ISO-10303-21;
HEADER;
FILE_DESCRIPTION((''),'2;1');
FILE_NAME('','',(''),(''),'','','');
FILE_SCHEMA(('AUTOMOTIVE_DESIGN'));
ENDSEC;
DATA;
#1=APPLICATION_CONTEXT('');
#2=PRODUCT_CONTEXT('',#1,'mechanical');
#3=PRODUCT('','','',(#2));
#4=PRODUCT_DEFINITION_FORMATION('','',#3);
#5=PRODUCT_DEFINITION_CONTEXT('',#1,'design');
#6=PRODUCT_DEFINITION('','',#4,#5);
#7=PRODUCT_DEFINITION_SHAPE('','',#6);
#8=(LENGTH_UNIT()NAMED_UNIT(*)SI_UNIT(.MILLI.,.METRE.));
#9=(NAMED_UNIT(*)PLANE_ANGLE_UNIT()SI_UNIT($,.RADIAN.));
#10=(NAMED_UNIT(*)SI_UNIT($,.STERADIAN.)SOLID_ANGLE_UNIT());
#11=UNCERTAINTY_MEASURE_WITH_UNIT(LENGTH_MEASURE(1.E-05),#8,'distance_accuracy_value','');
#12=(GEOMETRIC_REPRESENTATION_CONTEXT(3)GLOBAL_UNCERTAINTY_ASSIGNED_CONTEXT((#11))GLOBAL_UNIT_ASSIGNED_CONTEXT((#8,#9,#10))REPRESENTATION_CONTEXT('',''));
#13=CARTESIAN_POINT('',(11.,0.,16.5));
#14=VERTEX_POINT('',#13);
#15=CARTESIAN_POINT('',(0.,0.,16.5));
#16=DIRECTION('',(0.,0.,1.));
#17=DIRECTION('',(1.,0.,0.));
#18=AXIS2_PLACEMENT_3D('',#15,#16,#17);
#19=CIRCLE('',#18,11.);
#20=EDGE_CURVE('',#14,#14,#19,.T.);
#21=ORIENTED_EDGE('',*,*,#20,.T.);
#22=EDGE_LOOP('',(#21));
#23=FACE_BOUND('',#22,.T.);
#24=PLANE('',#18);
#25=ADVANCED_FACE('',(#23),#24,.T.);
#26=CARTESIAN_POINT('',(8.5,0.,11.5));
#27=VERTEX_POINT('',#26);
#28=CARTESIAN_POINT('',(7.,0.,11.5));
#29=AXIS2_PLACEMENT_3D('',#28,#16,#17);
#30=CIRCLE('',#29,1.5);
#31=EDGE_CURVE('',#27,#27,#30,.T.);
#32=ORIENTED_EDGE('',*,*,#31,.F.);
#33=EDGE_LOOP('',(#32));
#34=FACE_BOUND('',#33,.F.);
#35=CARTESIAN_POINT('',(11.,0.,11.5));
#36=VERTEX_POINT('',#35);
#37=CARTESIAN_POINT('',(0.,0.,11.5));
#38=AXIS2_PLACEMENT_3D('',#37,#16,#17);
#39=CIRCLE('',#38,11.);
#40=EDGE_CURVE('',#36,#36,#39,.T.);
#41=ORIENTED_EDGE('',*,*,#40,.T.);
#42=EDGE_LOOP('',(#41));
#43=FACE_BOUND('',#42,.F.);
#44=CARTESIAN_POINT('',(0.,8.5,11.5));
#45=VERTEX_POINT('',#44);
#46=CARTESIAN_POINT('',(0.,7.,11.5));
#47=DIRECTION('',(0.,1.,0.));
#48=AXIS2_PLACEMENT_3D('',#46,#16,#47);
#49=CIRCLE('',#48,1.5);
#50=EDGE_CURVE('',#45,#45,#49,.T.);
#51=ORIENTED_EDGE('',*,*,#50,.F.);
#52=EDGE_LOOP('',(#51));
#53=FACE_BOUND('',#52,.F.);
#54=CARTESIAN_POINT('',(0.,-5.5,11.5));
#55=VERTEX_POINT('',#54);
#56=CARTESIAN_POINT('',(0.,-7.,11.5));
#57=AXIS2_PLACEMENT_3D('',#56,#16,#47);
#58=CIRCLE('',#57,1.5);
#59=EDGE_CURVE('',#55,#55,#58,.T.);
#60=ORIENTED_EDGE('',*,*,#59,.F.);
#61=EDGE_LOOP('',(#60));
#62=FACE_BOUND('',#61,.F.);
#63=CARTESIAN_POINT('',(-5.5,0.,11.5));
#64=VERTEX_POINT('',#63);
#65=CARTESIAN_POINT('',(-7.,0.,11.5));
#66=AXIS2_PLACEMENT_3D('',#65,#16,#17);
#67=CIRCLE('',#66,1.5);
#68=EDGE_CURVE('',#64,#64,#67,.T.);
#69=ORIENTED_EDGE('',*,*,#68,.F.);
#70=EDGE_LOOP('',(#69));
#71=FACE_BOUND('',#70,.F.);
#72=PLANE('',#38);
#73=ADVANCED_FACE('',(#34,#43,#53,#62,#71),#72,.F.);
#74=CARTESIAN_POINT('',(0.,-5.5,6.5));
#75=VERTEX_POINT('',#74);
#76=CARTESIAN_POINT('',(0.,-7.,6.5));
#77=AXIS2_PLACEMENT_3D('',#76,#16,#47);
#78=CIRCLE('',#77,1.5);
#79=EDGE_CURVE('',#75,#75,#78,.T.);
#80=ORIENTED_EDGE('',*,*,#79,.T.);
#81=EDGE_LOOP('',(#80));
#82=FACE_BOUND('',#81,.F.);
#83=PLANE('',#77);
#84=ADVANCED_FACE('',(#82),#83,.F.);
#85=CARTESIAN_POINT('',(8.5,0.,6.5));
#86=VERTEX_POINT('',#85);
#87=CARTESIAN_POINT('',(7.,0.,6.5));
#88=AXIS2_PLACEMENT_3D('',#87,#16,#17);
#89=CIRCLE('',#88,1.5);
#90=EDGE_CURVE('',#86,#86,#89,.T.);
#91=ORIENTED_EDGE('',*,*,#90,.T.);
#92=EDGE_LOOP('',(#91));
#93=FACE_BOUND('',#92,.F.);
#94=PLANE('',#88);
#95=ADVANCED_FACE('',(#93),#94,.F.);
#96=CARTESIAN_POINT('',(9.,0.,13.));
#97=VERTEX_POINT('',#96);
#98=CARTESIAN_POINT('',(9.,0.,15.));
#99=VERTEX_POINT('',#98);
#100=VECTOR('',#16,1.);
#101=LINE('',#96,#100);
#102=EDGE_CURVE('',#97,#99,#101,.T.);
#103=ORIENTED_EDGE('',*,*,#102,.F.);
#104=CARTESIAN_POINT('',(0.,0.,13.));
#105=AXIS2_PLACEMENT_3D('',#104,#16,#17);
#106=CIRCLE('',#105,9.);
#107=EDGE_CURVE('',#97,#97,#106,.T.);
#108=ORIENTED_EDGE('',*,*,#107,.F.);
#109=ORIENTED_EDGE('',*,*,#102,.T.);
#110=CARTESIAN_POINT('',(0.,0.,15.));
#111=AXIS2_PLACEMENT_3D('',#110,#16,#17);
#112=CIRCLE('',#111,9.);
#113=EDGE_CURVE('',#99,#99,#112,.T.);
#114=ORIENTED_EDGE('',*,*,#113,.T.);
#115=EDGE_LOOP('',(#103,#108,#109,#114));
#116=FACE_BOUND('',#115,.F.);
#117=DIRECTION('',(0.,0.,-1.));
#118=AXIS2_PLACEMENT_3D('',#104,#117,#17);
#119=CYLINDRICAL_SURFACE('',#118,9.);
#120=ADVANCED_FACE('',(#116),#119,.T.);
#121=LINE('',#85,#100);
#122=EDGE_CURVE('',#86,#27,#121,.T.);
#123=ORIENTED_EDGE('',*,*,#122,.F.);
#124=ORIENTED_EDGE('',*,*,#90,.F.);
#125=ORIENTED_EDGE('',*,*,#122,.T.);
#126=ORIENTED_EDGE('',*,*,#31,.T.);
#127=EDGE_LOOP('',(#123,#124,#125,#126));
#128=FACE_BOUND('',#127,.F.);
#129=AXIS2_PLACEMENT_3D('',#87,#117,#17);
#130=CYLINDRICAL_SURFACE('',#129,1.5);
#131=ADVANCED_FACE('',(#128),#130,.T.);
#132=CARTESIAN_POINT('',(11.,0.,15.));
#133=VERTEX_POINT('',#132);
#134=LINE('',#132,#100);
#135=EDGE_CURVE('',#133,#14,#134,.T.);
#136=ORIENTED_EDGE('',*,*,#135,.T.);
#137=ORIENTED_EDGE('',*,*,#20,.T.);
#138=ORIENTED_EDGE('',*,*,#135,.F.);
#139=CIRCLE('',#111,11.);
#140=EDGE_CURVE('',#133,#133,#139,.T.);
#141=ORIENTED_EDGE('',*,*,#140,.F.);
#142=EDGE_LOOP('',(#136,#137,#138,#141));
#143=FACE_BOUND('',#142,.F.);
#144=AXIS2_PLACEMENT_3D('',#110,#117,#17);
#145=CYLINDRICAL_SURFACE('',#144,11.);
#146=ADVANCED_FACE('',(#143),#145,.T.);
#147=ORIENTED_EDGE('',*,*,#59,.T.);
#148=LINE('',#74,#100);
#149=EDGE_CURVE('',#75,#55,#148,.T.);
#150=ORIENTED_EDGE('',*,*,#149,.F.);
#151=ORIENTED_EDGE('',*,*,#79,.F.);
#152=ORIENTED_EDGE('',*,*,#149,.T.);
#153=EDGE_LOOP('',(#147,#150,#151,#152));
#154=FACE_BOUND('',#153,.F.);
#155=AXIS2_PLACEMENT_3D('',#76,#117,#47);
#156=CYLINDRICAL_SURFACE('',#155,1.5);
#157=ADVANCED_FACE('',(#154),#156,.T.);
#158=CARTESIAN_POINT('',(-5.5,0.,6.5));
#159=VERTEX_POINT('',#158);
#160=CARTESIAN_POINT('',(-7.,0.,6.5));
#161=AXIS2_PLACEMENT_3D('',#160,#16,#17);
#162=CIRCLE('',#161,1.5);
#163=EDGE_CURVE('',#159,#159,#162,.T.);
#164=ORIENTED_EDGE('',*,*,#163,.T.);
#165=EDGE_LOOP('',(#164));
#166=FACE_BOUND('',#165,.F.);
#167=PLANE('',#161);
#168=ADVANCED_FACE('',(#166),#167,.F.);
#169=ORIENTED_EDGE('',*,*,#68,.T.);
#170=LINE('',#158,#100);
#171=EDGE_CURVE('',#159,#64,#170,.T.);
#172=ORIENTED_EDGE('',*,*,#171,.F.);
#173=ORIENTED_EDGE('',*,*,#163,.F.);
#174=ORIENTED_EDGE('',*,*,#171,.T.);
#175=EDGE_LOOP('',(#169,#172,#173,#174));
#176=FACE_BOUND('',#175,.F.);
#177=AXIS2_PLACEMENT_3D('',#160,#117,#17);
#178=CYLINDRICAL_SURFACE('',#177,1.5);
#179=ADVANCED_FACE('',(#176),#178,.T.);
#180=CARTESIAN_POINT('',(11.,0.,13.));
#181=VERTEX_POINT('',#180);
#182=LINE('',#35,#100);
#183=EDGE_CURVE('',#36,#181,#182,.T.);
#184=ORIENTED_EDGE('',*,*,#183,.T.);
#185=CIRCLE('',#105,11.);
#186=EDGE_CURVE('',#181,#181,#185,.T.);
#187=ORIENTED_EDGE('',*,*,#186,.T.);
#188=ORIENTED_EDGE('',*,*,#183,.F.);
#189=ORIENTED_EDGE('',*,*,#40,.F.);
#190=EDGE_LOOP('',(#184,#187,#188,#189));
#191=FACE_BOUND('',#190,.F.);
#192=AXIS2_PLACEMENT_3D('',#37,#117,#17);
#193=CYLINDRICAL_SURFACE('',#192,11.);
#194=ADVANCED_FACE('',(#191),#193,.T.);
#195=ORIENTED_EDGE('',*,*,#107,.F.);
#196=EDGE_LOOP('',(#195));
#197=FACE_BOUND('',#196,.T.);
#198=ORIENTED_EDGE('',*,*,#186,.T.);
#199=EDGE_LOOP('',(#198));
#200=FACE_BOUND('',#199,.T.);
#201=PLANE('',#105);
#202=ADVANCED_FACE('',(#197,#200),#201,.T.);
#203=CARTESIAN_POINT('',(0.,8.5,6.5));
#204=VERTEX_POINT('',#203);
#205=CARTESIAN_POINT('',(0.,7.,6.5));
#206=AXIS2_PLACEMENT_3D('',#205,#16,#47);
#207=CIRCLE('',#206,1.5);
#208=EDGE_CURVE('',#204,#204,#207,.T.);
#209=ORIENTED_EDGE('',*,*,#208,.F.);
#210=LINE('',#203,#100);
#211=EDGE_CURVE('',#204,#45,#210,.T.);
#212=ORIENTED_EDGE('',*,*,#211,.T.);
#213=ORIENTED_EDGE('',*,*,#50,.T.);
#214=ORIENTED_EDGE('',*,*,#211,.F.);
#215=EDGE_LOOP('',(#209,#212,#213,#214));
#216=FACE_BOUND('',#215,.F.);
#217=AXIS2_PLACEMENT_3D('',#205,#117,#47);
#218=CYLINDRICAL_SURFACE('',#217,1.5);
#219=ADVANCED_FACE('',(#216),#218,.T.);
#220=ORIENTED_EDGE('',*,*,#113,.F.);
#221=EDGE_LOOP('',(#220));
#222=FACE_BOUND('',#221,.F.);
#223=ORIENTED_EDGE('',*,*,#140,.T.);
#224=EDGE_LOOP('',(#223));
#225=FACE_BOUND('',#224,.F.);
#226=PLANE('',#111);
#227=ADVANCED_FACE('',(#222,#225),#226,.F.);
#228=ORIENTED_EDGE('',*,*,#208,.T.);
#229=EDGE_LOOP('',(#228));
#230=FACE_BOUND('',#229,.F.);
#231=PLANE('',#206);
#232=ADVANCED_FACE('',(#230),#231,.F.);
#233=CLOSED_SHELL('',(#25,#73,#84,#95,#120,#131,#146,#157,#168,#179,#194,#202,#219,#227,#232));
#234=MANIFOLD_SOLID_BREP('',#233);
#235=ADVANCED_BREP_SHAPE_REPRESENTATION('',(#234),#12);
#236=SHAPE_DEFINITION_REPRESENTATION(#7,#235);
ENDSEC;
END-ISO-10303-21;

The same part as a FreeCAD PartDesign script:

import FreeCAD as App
import Part
import Sketcher

V = App.Vector
Q = App.Units.Quantity

doc = App.newDocument("Part")
body = doc.addObject("PartDesign::Body", "Body")

# Sketch on XY plane
sketch1 = body.newObject("Sketcher::SketchObject", "Sketch")
sketch1.AttachmentSupport = (doc.getObject("XY_Plane"), [""])
sketch1.MapMode = "FlatFace"
sketch1.addGeometry(Part.Circle(V(7, 0, 0), V(0, 0, 1), 1.5), False)
sketch1.addConstraint([
    Sketcher.Constraint("PointOnObject", 0, 3, -1),
    Sketcher.Constraint("Diameter", 0, Q("3 mm")),
    Sketcher.Constraint("DistanceX", -1, 1, 0, 3, Q("7 mm")),
])
pad1 = body.newObject("PartDesign::Pad", "Pad")
pad1.Profile = sketch1
pad1.Length = 5
body2 = doc.addObject("PartDesign::Body", "Body001")
body2.AllowCompound = True

# Sketch on XY plane
sketch2 = body2.newObject("Sketcher::SketchObject", "Sketch001")
sketch2.AttachmentSupport = (doc.getObject("XY_Plane001"), [""])
sketch2.MapMode = "FlatFace"
sketch2.addGeometry(Part.Circle(V(-7, 0, 0), V(0, 0, 1), 1.5), False)
sketch2.addConstraint([
    Sketcher.Constraint("PointOnObject", 0, 3, -1),
    Sketcher.Constraint("Diameter", 0, Q("3 mm")),
    Sketcher.Constraint("DistanceX", 0, 3, -1, 1, Q("7 mm")),
])
pad2 = body2.newObject("PartDesign::Pad", "Pad001")
pad2.Profile = sketch2
pad2.Length = 5
doc.recompute()

boolean = body2.newObject("PartDesign::Boolean", "Boolean")
boolean.Type = "Fuse"
boolean.addObjects([body])
body3 = doc.addObject("PartDesign::Body", "Body002")

# Sketch on XY plane
sketch3 = body3.newObject("Sketcher::SketchObject", "Sketch002")
sketch3.AttachmentSupport = (doc.getObject("XY_Plane002"), [""])
sketch3.MapMode = "FlatFace"
sketch3.addGeometry(Part.Circle(V(7, 0, 0), V(0, 0, 1), 1.5), False)
sketch3.addConstraint([
    Sketcher.Constraint("PointOnObject", 0, 3, -1),
    Sketcher.Constraint("Diameter", 0, Q("3 mm")),
    Sketcher.Constraint("DistanceX", -1, 1, 0, 3, Q("7 mm")),
])
pad3 = body3.newObject("PartDesign::Pad", "Pad002")
pad3.Profile = sketch3
pad3.Length = 5
body4 = doc.addObject("PartDesign::Body", "Body003")
body4.AllowCompound = True

# Sketch on XY plane
sketch4 = body4.newObject("Sketcher::SketchObject", "Sketch003")
sketch4.AttachmentSupport = (doc.getObject("XY_Plane003"), [""])
sketch4.MapMode = "FlatFace"
sketch4.addGeometry(Part.Circle(V(-7, 0, 0), V(0, 0, 1), 1.5), False)
sketch4.addConstraint([
    Sketcher.Constraint("PointOnObject", 0, 3, -1),
    Sketcher.Constraint("Diameter", 0, Q("3 mm")),
    Sketcher.Constraint("DistanceX", 0, 3, -1, 1, Q("7 mm")),
])
pad4 = body4.newObject("PartDesign::Pad", "Pad003")
pad4.Profile = sketch4
pad4.Length = 5
doc.recompute()

boolean2 = body4.newObject("PartDesign::Boolean", "Boolean001")
boolean2.Type = "Fuse"
boolean2.addObjects([body3])
body5 = doc.addObject("PartDesign::Body", "Body004")
body5.AllowCompound = True
doc.recompute()

body4.Placement = App.Placement(V(0, 0, 0), App.Rotation(V(0, 0, 1), 90))
boolean3 = body5.newObject("PartDesign::Boolean", "Boolean002")
boolean3.Type = "Fuse"
boolean3.addObjects([body4])
doc.recompute()

boolean4 = body5.newObject("PartDesign::Boolean", "Boolean003")
boolean4.Type = "Fuse"
boolean4.addObjects([body2])
body6 = doc.addObject("PartDesign::Body", "Body005")
body6.AllowCompound = True
doc.recompute()

body5.Placement = App.Placement(V(0, 0, 8), App.Rotation(V(0, 0, 1), 0))
boolean5 = body6.newObject("PartDesign::Boolean", "Boolean004")
boolean5.Type = "Fuse"
boolean5.addObjects([body5])
body7 = doc.addObject("PartDesign::Body", "Body006")

# Sketch on XY plane
sketch5 = body7.newObject("Sketcher::SketchObject", "Sketch004")
sketch5.AttachmentSupport = (doc.getObject("XY_Plane006"), [""])
sketch5.MapMode = "FlatFace"
sketch5.AttachmentOffset = App.Placement(V(0, 0, 15.5), App.Rotation())
sketch5.addGeometry(Part.Circle(V(0, 0, 0), V(0, 0, 1), 11), False)
sketch5.addConstraint([
    Sketcher.Constraint("Coincident", 0, 3, -1, 1),
    Sketcher.Constraint("Diameter", 0, Q("22 mm")),
])
pad5 = body7.newObject("PartDesign::Pad", "Pad004")
pad5.Profile = sketch5
pad5.Length = 1.5
body8 = doc.addObject("PartDesign::Body", "Body007")

# Sketch on XY plane
sketch6 = body8.newObject("Sketcher::SketchObject", "Sketch005")
sketch6.AttachmentSupport = (doc.getObject("XY_Plane007"), [""])
sketch6.MapMode = "FlatFace"
sketch6.AttachmentOffset = App.Placement(V(0, 0, 12), App.Rotation())
sketch6.addGeometry(Part.Circle(V(0, 0, 0), V(0, 0, 1), 11), False)
sketch6.addConstraint([
    Sketcher.Constraint("Coincident", 0, 3, -1, 1),
    Sketcher.Constraint("Diameter", 0, Q("22 mm")),
])
pad6 = body8.newObject("PartDesign::Pad", "Pad005")
pad6.Profile = sketch6
pad6.Length = 1.5
body9 = doc.addObject("PartDesign::Body", "Body008")

# Sketch on XY plane
sketch7 = body9.newObject("Sketcher::SketchObject", "Sketch006")
sketch7.AttachmentSupport = (doc.getObject("XY_Plane008"), [""])
sketch7.MapMode = "FlatFace"
sketch7.AttachmentOffset = App.Placement(V(0, 0, 13.5), App.Rotation())
sketch7.addGeometry(Part.Circle(V(0, 0, 0), V(0, 0, 1), 9), False)
sketch7.addConstraint([
    Sketcher.Constraint("Coincident", 0, 3, -1, 1),
    Sketcher.Constraint("Diameter", 0, Q("18 mm")),
])
pad7 = body9.newObject("PartDesign::Pad", "Pad006")
pad7.Profile = sketch7
pad7.Length = 2
doc.recompute()

boolean6 = body9.newObject("PartDesign::Boolean", "Boolean005")
boolean6.Type = "Fuse"
boolean6.addObjects([body7])
doc.recompute()

boolean7 = body9.newObject("PartDesign::Boolean", "Boolean006")
boolean7.Type = "Fuse"
boolean7.addObjects([body8])
body10 = doc.addObject("PartDesign::Body", "Body009")
doc.recompute()

body9.Placement = App.Placement(V(0, 0, 1), App.Rotation(V(0, 0, 1), 0))
boolean8 = body10.newObject("PartDesign::Boolean", "Boolean007")
boolean8.Type = "Fuse"
boolean8.addObjects([body9])
doc.recompute()

boolean9 = body10.newObject("PartDesign::Boolean", "Boolean008")
boolean9.Type = "Fuse"
boolean9.addObjects([body6])
body11 = doc.addObject("PartDesign::Body", "Body010")
doc.recompute()

body10.Placement = App.Placement(V(0, 0, -1.5), App.Rotation(V(0, 0, 1), 0))
boolean10 = body11.newObject("PartDesign::Boolean", "Boolean009")
boolean10.Type = "Fuse"
boolean10.addObjects([body10])

doc.recompute()
